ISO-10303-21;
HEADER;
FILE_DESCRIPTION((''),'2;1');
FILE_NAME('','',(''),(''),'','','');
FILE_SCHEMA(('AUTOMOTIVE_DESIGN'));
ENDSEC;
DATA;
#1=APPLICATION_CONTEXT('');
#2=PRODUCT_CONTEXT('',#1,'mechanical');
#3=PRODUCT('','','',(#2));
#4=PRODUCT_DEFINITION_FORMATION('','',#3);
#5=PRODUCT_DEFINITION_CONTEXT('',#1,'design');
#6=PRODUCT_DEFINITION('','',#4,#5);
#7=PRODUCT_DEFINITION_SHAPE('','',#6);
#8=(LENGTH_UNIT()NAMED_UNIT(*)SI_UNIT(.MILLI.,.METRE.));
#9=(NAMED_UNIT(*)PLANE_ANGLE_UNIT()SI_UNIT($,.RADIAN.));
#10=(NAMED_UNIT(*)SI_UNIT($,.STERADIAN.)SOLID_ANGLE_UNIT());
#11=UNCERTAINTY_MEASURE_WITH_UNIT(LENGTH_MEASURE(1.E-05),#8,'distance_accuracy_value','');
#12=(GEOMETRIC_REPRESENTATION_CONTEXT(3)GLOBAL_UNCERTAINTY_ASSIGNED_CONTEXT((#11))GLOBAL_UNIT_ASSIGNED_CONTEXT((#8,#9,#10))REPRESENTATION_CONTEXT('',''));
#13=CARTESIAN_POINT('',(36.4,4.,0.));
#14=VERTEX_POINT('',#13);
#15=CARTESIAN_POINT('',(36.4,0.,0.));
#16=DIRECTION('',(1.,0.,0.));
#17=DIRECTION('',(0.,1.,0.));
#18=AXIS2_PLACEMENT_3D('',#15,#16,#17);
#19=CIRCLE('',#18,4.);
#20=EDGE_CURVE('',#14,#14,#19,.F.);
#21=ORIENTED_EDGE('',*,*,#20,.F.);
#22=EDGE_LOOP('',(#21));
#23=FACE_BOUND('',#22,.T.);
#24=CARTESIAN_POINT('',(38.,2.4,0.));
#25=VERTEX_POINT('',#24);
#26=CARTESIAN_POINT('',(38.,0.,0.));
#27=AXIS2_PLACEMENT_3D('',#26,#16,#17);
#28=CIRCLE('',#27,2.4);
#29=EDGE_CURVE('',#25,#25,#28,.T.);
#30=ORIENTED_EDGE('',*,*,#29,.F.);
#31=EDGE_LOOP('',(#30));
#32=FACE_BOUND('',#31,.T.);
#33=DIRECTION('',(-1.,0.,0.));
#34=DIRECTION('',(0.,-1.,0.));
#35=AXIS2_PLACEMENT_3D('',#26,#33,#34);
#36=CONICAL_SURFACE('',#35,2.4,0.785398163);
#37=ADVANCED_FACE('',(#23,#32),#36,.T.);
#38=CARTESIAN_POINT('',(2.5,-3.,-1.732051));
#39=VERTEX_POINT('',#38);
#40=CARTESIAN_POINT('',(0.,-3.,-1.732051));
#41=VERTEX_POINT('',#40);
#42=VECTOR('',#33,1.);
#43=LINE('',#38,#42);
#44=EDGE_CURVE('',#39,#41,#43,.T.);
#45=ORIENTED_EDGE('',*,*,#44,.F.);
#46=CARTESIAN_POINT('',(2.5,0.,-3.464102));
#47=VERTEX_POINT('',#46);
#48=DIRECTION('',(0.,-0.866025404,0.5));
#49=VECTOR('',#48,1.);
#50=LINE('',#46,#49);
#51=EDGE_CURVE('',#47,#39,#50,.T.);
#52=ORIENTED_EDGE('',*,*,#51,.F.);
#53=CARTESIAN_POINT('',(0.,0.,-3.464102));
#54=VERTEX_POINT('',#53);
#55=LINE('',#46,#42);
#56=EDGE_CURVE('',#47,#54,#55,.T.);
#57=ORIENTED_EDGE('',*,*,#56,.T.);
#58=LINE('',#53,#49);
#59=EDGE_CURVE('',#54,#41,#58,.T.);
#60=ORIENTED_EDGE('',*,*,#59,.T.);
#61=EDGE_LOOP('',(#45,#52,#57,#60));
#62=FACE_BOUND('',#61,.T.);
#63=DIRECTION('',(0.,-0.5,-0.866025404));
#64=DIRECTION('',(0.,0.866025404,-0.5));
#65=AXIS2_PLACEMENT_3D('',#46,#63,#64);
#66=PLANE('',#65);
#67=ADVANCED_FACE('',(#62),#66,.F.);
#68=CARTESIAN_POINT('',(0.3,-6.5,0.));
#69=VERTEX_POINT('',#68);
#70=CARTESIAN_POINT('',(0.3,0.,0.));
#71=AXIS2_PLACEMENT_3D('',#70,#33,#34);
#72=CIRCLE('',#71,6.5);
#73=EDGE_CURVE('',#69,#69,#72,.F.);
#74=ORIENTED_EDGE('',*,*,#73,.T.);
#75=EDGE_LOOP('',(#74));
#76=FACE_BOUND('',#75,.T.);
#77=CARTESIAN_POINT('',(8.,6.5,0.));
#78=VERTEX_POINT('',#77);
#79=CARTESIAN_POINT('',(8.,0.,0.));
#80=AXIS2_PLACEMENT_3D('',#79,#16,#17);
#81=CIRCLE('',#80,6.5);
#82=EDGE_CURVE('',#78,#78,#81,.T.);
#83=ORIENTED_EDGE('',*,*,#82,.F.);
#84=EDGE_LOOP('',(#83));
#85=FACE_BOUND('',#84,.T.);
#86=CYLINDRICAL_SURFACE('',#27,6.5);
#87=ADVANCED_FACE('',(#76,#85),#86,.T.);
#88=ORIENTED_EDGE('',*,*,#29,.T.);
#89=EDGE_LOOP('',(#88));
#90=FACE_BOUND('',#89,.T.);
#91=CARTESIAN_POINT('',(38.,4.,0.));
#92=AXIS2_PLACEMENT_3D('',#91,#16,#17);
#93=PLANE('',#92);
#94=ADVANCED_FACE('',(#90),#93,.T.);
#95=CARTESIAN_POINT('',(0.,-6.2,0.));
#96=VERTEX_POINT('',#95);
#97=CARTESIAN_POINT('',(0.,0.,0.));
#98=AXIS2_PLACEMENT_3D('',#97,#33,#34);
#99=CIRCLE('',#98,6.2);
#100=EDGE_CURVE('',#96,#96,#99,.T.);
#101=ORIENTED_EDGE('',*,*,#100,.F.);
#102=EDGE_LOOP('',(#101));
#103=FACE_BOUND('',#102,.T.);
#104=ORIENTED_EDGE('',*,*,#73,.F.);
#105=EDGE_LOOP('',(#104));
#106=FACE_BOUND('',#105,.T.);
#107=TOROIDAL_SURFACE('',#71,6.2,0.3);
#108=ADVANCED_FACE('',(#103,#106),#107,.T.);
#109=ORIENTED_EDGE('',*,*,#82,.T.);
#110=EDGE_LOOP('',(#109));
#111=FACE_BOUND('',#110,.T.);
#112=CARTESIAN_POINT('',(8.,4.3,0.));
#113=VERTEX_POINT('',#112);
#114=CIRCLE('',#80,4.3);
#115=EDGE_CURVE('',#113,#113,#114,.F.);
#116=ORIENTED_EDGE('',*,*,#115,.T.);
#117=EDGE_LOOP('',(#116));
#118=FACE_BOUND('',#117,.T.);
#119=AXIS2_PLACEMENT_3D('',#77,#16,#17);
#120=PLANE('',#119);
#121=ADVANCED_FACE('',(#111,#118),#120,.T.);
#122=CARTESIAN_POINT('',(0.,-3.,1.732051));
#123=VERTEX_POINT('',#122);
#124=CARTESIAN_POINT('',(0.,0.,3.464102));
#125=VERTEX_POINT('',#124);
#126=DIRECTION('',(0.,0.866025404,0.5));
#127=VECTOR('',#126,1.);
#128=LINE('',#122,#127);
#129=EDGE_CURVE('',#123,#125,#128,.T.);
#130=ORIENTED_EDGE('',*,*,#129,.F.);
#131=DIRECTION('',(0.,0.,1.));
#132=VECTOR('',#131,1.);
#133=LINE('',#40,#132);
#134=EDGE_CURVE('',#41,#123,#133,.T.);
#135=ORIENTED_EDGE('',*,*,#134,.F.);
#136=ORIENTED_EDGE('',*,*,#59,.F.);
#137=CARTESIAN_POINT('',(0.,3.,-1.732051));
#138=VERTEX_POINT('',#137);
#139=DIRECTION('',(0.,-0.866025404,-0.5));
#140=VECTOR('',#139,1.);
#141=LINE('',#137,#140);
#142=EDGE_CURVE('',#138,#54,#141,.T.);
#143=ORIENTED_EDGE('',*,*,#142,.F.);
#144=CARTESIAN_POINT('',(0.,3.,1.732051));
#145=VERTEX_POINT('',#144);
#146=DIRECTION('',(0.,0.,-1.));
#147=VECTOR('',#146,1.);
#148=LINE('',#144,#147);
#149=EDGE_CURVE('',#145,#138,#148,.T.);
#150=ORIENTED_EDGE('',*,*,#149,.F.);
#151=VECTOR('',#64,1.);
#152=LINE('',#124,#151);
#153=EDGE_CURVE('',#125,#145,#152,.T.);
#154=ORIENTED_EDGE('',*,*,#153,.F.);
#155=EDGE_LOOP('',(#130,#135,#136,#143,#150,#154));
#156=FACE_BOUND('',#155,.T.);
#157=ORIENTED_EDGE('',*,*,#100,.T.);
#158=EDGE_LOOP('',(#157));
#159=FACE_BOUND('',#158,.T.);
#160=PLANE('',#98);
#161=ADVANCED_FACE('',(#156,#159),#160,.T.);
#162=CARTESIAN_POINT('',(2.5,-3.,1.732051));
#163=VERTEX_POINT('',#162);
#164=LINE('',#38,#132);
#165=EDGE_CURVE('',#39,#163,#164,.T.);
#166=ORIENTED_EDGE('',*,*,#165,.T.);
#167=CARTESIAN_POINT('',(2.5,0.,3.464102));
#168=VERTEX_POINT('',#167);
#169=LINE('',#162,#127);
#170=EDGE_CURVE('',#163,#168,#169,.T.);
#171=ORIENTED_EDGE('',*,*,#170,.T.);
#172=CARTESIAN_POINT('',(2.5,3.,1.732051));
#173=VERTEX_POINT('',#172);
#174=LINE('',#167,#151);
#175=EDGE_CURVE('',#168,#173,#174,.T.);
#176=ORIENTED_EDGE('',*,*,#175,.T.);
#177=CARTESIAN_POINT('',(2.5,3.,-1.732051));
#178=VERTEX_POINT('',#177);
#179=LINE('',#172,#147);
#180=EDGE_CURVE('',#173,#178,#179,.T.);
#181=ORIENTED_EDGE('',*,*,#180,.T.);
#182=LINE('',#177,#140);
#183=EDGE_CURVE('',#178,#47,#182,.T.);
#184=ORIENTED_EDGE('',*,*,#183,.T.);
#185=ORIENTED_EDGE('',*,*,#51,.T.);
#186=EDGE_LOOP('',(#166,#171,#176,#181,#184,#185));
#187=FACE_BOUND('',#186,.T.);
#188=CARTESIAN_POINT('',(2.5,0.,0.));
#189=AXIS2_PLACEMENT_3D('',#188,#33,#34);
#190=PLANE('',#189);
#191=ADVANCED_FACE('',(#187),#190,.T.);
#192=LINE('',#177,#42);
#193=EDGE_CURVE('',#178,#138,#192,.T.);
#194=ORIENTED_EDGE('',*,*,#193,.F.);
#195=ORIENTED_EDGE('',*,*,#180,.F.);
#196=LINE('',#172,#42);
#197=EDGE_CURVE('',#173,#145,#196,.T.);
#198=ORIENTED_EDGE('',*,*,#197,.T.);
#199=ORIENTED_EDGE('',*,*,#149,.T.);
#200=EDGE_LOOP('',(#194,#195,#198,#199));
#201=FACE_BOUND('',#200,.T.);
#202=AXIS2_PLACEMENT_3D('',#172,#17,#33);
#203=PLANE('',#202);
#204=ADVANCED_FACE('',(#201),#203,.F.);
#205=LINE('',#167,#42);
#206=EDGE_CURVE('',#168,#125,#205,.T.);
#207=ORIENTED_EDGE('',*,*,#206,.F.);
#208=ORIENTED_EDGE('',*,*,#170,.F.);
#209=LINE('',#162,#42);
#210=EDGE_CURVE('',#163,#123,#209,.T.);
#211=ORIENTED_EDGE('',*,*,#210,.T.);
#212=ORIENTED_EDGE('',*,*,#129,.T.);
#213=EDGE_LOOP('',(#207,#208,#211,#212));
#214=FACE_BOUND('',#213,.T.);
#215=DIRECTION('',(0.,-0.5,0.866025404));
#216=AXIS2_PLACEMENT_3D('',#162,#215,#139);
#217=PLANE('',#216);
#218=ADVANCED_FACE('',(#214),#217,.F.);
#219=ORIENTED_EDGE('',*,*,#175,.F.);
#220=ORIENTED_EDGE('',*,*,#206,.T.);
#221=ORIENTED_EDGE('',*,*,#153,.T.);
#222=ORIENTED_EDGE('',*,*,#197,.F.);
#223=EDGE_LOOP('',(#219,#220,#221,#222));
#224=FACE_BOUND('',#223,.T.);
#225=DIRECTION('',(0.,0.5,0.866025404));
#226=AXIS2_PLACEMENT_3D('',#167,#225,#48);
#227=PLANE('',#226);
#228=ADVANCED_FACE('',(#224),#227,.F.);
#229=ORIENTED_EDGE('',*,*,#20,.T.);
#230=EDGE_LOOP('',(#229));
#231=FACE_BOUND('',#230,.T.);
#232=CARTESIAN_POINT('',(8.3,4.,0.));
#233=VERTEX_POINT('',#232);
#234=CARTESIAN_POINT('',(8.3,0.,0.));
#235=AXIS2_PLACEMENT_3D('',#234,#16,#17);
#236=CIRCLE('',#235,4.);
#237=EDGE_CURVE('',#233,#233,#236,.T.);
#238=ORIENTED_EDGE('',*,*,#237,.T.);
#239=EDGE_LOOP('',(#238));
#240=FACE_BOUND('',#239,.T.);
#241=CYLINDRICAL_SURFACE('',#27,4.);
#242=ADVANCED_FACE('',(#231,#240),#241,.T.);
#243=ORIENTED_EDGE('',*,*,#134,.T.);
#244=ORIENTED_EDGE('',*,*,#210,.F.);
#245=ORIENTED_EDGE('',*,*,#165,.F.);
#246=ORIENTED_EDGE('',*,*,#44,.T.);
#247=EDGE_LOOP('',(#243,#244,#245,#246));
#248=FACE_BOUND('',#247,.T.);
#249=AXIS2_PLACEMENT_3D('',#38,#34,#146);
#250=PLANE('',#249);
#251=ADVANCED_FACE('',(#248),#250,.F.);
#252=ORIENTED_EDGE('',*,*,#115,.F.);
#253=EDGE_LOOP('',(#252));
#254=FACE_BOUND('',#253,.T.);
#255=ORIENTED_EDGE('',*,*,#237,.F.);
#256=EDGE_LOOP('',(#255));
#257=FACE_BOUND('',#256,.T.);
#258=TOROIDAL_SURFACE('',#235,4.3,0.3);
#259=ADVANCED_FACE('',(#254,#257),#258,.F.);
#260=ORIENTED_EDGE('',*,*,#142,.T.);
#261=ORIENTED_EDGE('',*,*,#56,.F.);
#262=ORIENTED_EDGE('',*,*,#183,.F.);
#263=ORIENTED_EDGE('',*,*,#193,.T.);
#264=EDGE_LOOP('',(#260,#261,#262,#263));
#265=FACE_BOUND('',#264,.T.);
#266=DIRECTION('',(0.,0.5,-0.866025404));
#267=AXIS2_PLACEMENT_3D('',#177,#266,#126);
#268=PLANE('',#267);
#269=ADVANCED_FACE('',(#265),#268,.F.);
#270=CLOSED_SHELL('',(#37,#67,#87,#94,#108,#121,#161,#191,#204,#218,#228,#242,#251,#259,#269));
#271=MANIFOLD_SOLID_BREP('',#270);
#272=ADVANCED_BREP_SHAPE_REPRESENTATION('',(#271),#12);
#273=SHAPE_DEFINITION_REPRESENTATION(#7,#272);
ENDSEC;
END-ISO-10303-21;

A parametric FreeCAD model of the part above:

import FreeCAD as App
import Part
import Sketcher
from FreeCAD import Vector
Q = App.Units.Quantity


def edges_at(feature, points):
    """Names of the edges that pass closest to the given points."""
    edges = feature.Shape.Edges
    near = lambda p: min(range(len(edges)), key=lambda i: edges[i].distToShape(Part.Vertex(*p))[0])
    return sorted({f"Edge{near(p) + 1}" for p in points})


def add_polygon(sketch, points):
    """Adds a closed chain of lines whose ends are joined by coincident constraints."""
    first, n = sketch.GeometryCount, len(points)
    for a, b in zip(points, points[1:] + points[:1]):
        sketch.addGeometry(Part.LineSegment(App.Vector(*a, 0), App.Vector(*b, 0)), False)
    for i in range(n):
        sketch.addConstraint(Sketcher.Constraint("Coincident", first + i, 2, first + (i + 1) % n, 1))

doc = App.newDocument("Part")
body = doc.addObject("PartDesign::Body", "Body")

sketch1 = body.newObject("Sketcher::SketchObject", "Sketch")
sketch1.AttachmentSupport = (doc.getObject("XY_Plane"), [""])
sketch1.MapMode = "FlatFace"
add_polygon(sketch1, [(0, 6.5), (0, 0), (38, 0), (38, 4), (8, 4), (8, 6.5)])
sketch1.addConstraint([
    Sketcher.Constraint("Vertical", 0),
    Sketcher.Constraint("Horizontal", 1),
    Sketcher.Constraint("Vertical", 2),
    Sketcher.Constraint("Horizontal", 3),
    Sketcher.Constraint("Vertical", 4),
    Sketcher.Constraint("Horizontal", 5),
    Sketcher.Constraint("Coincident", 0, 2, -1, 1),
    Sketcher.Constraint("DistanceX", 1, 1, 1, 2, 38.0),
    Sketcher.Constraint("DistanceX", 3, 2, 3, 1, 30.0),
    Sketcher.Constraint("DistanceY", 2, 1, 2, 2, 4.0),
    Sketcher.Constraint("DistanceY", 0, 2, 0, 1, 6.5),
])
revolution = body.newObject("PartDesign::Revolution", "Revolution")
revolution.Profile = sketch1
revolution.ReferenceAxis = (sketch1, ["H_Axis"])
revolution.Angle = 360

sketch2 = body.newObject("Sketcher::SketchObject", "Sketch001")
sketch2.AttachmentSupport = (doc.getObject("YZ_Plane"), [""])
sketch2.MapMode = "FlatFace"
add_polygon(sketch2, [(3, -1.7), (0, -3.5), (-3, -1.7), (-3, 1.7), (0, 3.5), (3, 1.7)])
sketch2.addConstraint([
    Sketcher.Constraint("Vertical", 2),
    Sketcher.Constraint("Vertical", 5),
    Sketcher.Constraint("Symmetric", 0, 2, 3, 2, -1, 1),
    Sketcher.Constraint("Symmetric", 1, 2, 4, 2, -1, 1),
    Sketcher.Constraint("PointOnObject", 0, 2, -2),
    Sketcher.Constraint("Parallel", 0, 3),
    Sketcher.Constraint("Horizontal", 2, 2, 4, 2),
    Sketcher.Constraint("Angle", 0, Q("-150 deg")),
    Sketcher.Constraint("DistanceX", 1, 2, -1, 1, 3.0),
    Sketcher.Constraint("DistanceY", 2, 1, 2, 2, 3.464102),
])
pocket1 = body.newObject("PartDesign::Pocket", "Pocket")
pocket1.Profile = sketch2
pocket1.Length = 2.5
pocket1.Reversed = True
doc.recompute()

fillet = body.newObject("PartDesign::Fillet", "Fillet")
fillet.Base = (pocket1, edges_at(pocket1, [(8, -4, 0), (0, -6.5, 0)]))
fillet.Radius = 0.3
doc.recompute()

chamfer = body.newObject("PartDesign::Chamfer", "Chamfer")
chamfer.Base = (fillet, edges_at(fillet, [(38, -4, 0)]))
chamfer.Size = 1.6

doc.recompute()
